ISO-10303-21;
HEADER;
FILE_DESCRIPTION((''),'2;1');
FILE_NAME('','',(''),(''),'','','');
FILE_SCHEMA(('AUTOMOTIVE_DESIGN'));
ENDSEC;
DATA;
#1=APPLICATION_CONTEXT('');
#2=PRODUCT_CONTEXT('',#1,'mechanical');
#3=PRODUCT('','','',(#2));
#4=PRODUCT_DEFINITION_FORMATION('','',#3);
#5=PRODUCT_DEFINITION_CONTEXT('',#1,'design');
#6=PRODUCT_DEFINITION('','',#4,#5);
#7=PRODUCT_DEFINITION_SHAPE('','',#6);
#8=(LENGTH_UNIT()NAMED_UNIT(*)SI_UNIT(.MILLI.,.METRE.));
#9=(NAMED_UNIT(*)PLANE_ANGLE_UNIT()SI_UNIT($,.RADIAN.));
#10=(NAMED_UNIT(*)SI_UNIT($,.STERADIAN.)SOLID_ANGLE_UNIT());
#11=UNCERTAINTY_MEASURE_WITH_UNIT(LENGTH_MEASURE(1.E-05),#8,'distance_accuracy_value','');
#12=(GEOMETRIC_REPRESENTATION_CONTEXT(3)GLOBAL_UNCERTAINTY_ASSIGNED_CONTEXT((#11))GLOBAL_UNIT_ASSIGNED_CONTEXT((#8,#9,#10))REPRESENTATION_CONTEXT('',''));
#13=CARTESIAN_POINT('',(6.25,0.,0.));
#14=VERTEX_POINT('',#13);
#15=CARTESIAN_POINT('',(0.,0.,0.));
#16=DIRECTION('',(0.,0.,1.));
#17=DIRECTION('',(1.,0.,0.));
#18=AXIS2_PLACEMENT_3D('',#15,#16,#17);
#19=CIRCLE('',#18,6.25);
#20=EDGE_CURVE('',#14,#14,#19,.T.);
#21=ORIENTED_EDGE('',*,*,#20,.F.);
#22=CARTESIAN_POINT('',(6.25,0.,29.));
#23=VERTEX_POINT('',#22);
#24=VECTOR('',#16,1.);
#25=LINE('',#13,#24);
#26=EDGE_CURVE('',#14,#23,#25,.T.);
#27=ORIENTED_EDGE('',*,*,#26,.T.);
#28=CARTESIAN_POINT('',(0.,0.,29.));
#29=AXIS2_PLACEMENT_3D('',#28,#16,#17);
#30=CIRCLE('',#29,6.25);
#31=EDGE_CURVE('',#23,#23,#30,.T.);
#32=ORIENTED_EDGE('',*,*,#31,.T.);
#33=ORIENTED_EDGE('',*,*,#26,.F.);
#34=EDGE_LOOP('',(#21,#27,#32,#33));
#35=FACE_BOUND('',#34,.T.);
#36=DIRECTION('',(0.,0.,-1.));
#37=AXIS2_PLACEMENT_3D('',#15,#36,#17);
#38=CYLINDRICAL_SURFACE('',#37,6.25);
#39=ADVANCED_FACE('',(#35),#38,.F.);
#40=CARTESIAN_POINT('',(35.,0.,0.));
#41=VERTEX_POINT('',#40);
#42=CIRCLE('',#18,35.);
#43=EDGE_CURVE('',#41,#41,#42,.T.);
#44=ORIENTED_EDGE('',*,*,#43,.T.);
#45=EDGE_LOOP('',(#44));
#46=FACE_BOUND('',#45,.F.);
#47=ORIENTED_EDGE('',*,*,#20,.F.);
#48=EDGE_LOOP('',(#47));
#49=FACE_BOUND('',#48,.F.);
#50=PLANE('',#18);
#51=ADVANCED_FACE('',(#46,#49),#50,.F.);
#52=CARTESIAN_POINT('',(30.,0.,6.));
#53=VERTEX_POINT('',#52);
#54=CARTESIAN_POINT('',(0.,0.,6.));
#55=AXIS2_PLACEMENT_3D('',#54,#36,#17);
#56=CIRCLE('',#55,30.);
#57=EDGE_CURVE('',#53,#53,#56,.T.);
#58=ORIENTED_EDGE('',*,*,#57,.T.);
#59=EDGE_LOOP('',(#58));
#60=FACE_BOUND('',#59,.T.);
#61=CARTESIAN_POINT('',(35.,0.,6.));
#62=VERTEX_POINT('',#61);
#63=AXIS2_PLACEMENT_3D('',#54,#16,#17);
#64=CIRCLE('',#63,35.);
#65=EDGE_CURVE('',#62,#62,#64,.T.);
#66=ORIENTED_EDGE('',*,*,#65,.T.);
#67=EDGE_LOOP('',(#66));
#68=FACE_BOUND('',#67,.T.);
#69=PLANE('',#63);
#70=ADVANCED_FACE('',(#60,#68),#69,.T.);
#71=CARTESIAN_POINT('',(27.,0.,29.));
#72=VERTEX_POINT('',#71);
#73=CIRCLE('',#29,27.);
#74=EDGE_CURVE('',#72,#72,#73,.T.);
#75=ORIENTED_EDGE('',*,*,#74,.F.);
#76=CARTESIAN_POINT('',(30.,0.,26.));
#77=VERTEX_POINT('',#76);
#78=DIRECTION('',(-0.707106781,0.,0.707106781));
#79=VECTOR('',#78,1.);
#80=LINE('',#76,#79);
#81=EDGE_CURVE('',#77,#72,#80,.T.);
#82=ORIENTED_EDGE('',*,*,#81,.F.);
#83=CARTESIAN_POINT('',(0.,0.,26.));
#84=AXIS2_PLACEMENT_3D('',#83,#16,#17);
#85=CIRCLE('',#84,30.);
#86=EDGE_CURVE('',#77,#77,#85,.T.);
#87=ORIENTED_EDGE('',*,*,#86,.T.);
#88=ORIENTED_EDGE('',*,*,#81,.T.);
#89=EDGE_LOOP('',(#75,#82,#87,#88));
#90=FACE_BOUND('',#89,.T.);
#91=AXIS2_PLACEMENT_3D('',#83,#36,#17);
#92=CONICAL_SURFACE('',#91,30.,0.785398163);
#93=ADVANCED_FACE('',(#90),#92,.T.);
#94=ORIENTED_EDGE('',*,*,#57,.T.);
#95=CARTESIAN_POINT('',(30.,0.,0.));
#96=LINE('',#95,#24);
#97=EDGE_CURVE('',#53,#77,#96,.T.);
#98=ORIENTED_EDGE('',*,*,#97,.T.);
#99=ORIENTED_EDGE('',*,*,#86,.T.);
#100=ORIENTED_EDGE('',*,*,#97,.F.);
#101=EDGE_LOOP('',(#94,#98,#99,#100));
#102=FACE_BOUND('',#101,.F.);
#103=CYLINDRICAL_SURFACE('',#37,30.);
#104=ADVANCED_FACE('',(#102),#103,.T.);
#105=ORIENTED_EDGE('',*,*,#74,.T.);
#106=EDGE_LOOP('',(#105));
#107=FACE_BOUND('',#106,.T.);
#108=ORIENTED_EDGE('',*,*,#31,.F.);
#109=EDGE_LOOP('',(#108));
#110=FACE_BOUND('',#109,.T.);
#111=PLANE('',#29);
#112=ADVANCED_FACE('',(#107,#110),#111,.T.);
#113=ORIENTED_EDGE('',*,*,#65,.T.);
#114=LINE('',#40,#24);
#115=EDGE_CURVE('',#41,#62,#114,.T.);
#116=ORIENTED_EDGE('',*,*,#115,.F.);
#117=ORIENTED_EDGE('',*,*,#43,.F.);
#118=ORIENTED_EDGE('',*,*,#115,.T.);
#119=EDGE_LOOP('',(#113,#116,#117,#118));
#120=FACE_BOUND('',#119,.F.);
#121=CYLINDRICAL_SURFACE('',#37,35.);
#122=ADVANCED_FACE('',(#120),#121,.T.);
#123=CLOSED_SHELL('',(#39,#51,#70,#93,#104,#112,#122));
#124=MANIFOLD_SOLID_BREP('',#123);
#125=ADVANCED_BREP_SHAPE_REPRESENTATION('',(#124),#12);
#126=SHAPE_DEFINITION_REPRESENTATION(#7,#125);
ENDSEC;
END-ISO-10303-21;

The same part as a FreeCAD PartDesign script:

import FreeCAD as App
import Part
import Sketcher


def edges_at(feature, points):
    """Names of the edges that pass closest to the given points."""
    edges = feature.Shape.Edges
    near = lambda p: min(range(len(edges)), key=lambda i: edges[i].distToShape(Part.Vertex(*p))[0])
    return sorted({f"Edge{near(p) + 1}" for p in points})

doc = App.newDocument("Part")
body = doc.addObject("PartDesign::Body", "Body")

# Sketch on XY plane
sketch1 = body.newObject("Sketcher::SketchObject", "Sketch")
sketch1.AttachmentSupport = (doc.getObject("XY_Plane"), [""])
sketch1.MapMode = "FlatFace"
sketch1.addGeometry(Part.Circle(App.Vector(0, 0, 0), App.Vector(0, 0, 1), 30), False)
sketch1.addGeometry(Part.Circle(App.Vector(0, 0, 0), App.Vector(0, 0, 1), 6), False)
sketch1.addConstraint(Sketcher.Constraint("Coincident", 0, 3, -1, 1))
sketch1.addConstraint(Sketcher.Constraint("Coincident", 1, 3, -1, 1))
sketch1.addConstraint(Sketcher.Constraint("Diameter", 0, 60.0))
sketch1.addConstraint(Sketcher.Constraint("Diameter", 1, 12.5))
pad1 = body.newObject("PartDesign::Pad", "Pad")
pad1.Profile = sketch1
pad1.Length = 29

# Sketch on XY plane
sketch2 = body.newObject("Sketcher::SketchObject", "Sketch001")
sketch2.AttachmentSupport = (doc.getObject("XY_Plane"), [""])
sketch2.MapMode = "FlatFace"
sketch2.addGeometry(Part.Circle(App.Vector(0, 0, 0), App.Vector(0, 0, 1), 35), False)
sketch2.addGeometry(Part.Circle(App.Vector(0, 0, 0), App.Vector(0, 0, 1), 6), False)
sketch2.addConstraint(Sketcher.Constraint("Coincident", 0, 3, -1, 1))
sketch2.addConstraint(Sketcher.Constraint("Coincident", 1, 3, -1, 1))
sketch2.addConstraint(Sketcher.Constraint("Diameter", 0, 70.0))
sketch2.addConstraint(Sketcher.Constraint("Diameter", 1, 12.5))
pad2 = body.newObject("PartDesign::Pad", "Pad001")
pad2.Profile = sketch2
pad2.Length = 6
doc.recompute()

chamfer = body.newObject("PartDesign::Chamfer", "Chamfer")
chamfer.Base = (pad2, edges_at(pad2, [(-30, 0, 29)]))
chamfer.Size = 3

doc.recompute()
